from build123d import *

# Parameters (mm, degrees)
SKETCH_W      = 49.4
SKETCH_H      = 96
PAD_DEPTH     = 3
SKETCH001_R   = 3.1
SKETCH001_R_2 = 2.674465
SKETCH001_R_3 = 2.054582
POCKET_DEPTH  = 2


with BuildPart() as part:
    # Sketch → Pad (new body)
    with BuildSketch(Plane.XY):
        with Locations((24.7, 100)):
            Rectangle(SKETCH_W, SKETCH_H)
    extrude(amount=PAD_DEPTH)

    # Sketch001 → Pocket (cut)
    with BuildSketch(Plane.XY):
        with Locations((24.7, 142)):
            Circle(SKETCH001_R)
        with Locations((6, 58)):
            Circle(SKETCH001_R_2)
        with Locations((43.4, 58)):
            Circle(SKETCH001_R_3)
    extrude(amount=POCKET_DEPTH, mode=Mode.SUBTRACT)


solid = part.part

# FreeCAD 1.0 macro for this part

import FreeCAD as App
import Part
import Sketcher

V = App.Vector
Q = App.Units.Quantity


def add_polygon(sketch, points):
    """Adds a closed chain of lines whose ends are joined by coincident constraints."""
    first, n = sketch.GeometryCount, len(points)
    for a, b in zip(points, points[1:] + points[:1]):
        sketch.addGeometry(Part.LineSegment(App.Vector(*a, 0), App.Vector(*b, 0)), False)
    for i in range(n):
        sketch.addConstraint(Sketcher.Constraint("Coincident", first + i, 2, first + (i + 1) % n, 1))

doc = App.newDocument("Part")
params = doc.addObject("Spreadsheet::Sheet", "Params")
for row, (alias, value) in enumerate([
    ("sketch1_height", "96 mm"),
    ("sketch1_width", "49.4 mm"),
    ("pad1_length", "3 mm"),
    ("sketch2_diameter", "6.2 mm"),
    ("pocket1_length", "2 mm"),
], start=1):
    params.set(f"A{row}", alias)
    params.set(f"B{row}", "=" + value)
    params.setAlias(f"B{row}", alias)

body = doc.addObject("PartDesign::Body", "Body")

# Sketch on XY plane
sketch1 = body.newObject("Sketcher::SketchObject", "Sketch")
sketch1.AttachmentSupport = (doc.getObject("XY_Plane"), [""])
sketch1.MapMode = "FlatFace"
add_polygon(sketch1, [(0, 148), (0, 52), (49, 52), (49, 148)])  # lines 0-3
sketch1.addConstraint([
    Sketcher.Constraint("Vertical", 0),
    Sketcher.Constraint("Horizontal", 1),
    Sketcher.Constraint("Vertical", 2),
    Sketcher.Constraint("Horizontal", 3),
    Sketcher.Constraint("PointOnObject", 0, 2, -2),
    Sketcher.Constraint("DistanceY", 0, 2, 0, 1, Q("96 mm")),
    Sketcher.Constraint("DistanceX", 1, 1, 1, 2, Q("49.4 mm")),
    Sketcher.Constraint("DistanceY", -1, 1, 0, 2, Q("52 mm")),
])
sketch1.setExpression("Constraints[9]", "Params.sketch1_height")
sketch1.setExpression("Constraints[10]", "Params.sketch1_width")
pad1 = body.newObject("PartDesign::Pad", "Pad")
pad1.Profile = sketch1
pad1.setExpression("Length", "Params.pad1_length")

# Sketch on XY plane
sketch2 = body.newObject("Sketcher::SketchObject", "Sketch001")
sketch2.AttachmentSupport = (doc.getObject("XY_Plane"), [""])
sketch2.MapMode = "FlatFace"
sketch2.addGeometry([
    Part.Circle(V(24.7, 142, 0), V(0, 0, 1), 3.1),
    Part.Circle(V(6, 58, 0), V(0, 0, 1), 2.7),
    Part.Circle(V(43.4, 58, 0), V(0, 0, 1), 2.1),
], False)
sketch2.addConstraint([
    Sketcher.Constraint("Horizontal", 1, 3, 2, 3),
    Sketcher.Constraint("Diameter", 0, Q("6.2 mm")),
    Sketcher.Constraint("DistanceY", -1, 1, 0, 3, Q("142 mm")),
    Sketcher.Constraint("DistanceX", -1, 1, 1, 3, Q("6 mm")),
    Sketcher.Constraint("DistanceY", -1, 1, 1, 3, Q("58 mm")),
    Sketcher.Constraint("DistanceX", -1, 1, 0, 3, Q("24.7 mm")),
    Sketcher.Constraint("DistanceX", -1, 1, 2, 3, Q("43.4 mm")),
    Sketcher.Constraint("Diameter", 1, Q("5.34893 mm")),
    Sketcher.Constraint("Diameter", 2, Q("4.109164 mm")),
])
sketch2.setExpression("Constraints[1]", "Params.sketch2_diameter")
pocket1 = body.newObject("PartDesign::Pocket", "Pocket")
pocket1.Profile = sketch2
pocket1.setExpression("Length", "Params.pocket1_length")
pocket1.Reversed = True

doc.recompute()
